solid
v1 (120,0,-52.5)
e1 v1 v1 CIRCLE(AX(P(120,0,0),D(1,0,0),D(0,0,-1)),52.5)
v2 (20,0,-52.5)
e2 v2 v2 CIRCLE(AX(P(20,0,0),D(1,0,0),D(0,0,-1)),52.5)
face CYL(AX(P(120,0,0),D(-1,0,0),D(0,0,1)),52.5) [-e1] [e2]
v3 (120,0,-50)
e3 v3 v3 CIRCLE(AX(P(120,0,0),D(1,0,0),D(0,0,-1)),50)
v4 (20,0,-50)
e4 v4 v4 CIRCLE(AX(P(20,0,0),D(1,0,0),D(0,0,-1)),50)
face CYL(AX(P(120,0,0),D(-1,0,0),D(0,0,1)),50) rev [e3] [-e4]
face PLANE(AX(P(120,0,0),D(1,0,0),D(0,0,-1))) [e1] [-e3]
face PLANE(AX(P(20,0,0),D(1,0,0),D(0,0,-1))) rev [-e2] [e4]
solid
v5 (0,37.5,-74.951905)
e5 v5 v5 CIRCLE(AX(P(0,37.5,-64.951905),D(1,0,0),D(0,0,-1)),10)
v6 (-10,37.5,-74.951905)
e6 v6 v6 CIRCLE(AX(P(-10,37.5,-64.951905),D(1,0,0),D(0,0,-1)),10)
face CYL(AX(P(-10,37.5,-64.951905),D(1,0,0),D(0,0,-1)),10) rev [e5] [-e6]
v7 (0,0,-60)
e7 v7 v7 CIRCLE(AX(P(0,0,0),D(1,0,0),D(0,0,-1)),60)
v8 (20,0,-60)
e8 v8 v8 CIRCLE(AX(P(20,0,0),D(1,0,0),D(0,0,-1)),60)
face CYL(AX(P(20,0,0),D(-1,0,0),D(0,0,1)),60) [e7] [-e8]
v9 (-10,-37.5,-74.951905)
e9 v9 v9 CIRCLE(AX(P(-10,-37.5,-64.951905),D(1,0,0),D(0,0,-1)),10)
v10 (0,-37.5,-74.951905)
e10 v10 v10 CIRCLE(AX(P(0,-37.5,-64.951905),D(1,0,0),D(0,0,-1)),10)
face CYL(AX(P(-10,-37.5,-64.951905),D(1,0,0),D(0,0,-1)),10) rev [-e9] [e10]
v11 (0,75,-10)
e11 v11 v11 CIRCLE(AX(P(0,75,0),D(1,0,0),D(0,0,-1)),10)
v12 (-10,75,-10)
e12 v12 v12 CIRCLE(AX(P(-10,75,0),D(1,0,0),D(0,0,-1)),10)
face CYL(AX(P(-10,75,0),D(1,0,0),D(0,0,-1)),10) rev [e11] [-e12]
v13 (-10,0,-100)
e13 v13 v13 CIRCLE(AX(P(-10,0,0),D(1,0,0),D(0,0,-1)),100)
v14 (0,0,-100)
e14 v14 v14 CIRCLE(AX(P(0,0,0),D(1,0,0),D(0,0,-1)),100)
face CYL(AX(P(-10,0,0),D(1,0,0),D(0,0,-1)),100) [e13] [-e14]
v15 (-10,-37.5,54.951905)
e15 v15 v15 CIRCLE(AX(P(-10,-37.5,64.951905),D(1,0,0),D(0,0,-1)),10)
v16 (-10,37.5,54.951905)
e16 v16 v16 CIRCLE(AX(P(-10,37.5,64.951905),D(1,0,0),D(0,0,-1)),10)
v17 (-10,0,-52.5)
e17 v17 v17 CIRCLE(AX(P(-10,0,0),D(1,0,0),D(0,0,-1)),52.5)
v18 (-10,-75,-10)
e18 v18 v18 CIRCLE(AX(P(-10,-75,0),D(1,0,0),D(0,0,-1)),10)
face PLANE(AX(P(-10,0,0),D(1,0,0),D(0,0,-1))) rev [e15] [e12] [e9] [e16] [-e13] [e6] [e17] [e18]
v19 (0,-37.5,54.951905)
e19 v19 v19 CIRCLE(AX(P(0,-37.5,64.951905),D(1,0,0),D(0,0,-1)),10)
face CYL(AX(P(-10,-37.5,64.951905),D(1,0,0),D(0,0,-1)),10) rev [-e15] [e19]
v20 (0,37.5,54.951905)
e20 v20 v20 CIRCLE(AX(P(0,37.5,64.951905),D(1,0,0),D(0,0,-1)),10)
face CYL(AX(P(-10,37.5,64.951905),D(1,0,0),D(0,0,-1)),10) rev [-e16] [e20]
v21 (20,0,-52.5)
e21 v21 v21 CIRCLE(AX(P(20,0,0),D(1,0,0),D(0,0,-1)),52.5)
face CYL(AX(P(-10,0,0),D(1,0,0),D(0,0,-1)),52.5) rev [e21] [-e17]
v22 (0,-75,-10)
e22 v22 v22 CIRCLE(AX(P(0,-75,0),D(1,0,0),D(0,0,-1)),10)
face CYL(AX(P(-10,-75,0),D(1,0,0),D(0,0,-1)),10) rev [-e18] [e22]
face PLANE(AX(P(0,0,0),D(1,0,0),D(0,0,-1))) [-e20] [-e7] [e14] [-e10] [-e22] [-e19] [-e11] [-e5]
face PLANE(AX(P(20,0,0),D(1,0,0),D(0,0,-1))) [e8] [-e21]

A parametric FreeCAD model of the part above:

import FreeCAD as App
import Part
import Sketcher

V = App.Vector

doc = App.newDocument("Part")
body = doc.addObject("PartDesign::Body", "Body")

# Sketch on YZ plane
sketch1 = body.newObject("Sketcher::SketchObject", "Sketch")
sketch1.AttachmentSupport = (doc.getObject("YZ_Plane"), [""])
sketch1.MapMode = "FlatFace"
sketch1.addGeometry(Part.Circle(V(0, 0, 0), V(0, 0, 1), 100), False)
sketch1.addGeometry(Part.Circle(V(-38, 65, 0), V(0, 0, 1), 10), False)
sketch1.addGeometry(Part.Circle(V(-75, 0, 0), V(0, 0, 1), 10), False)
sketch1.addGeometry(Part.Circle(V(-38, -65, 0), V(0, 0, 1), 10), False)
sketch1.addGeometry(Part.Circle(V(38, 65, 0), V(0, 0, 1), 10), False)
sketch1.addGeometry(Part.Circle(V(0, 0, 0), V(0, 0, 1), 52), False)
sketch1.addGeometry(Part.Circle(V(38, -65, 0), V(0, 0, 1), 10), False)
sketch1.addGeometry(Part.Circle(V(75, 0, 0), V(0, 0, 1), 10), False)
sketch1.addConstraint(Sketcher.Constraint("Coincident", 0, 3, -1, 1))
sketch1.addConstraint(Sketcher.Constraint("Coincident", 5, 3, -1, 1))
sketch1.addConstraint(Sketcher.Constraint("Equal", 1, 2))
sketch1.addConstraint(Sketcher.Constraint("Equal", 2, 3))
sketch1.addConstraint(Sketcher.Constraint("Equal", 3, 4))
sketch1.addConstraint(Sketcher.Constraint("Equal", 4, 6))
sketch1.addConstraint(Sketcher.Constraint("Equal", 6, 7))
sketch1.addConstraint(Sketcher.Constraint("Symmetric", 3, 3, 4, 3, -1, 1))
sketch1.addConstraint(Sketcher.Constraint("Symmetric", 1, 3, 6, 3, -1, 1))
sketch1.addConstraint(Sketcher.Constraint("Symmetric", 2, 3, 7, 3, -1, 1))
sketch1.addConstraint(Sketcher.Constraint("Symmetric", 1, 3, 4, 3, -2))
sketch1.addConstraint(Sketcher.Constraint("PointOnObject", 2, 3, -1))
sketch1.addConstraint(Sketcher.Constraint("Diameter", 0, 200.0))
sketch1.addConstraint(Sketcher.Constraint("Diameter", 1, 20.0))
sketch1.addConstraint(Sketcher.Constraint("Diameter", 5, 105.0))
sketch1.addConstraint(Sketcher.Constraint("DistanceX", 2, 3, -1, 1, 75.0))
sketch1.addConstraint(Sketcher.Constraint("DistanceX", 1, 3, 4, 3, 75.0))
sketch1.addConstraint(Sketcher.Constraint("DistanceY", 3, 3, 1, 3, 129.903811))
pad1 = body.newObject("PartDesign::Pad", "Pad")
pad1.Profile = sketch1
pad1.Length = 10
pad1.Reversed = True

# Sketch on YZ plane
sketch2 = body.newObject("Sketcher::SketchObject", "Sketch001")
sketch2.AttachmentSupport = (doc.getObject("YZ_Plane"), [""])
sketch2.MapMode = "FlatFace"
sketch2.AttachmentOffset = App.Placement(V(0, 0, 20), App.Rotation())
sketch2.addGeometry(Part.Circle(V(0, 0, 0), V(0, 0, 1), 60), False)
sketch2.addGeometry(Part.Circle(V(0, 0, 0), V(0, 0, 1), 52), False)
sketch2.addConstraint(Sketcher.Constraint("Coincident", 0, 3, -1, 1))
sketch2.addConstraint(Sketcher.Constraint("Coincident", 1, 3, -1, 1))
sketch2.addConstraint(Sketcher.Constraint("Diameter", 0, 120.0))
sketch2.addConstraint(Sketcher.Constraint("Diameter", 1, 105.0))
pad2 = body.newObject("PartDesign::Pad", "Pad001")
pad2.Profile = sketch2
pad2.Length = 20
pad2.Reversed = True
body2 = doc.addObject("PartDesign::Body", "Body001")

# Sketch on YZ plane
sketch3 = body2.newObject("Sketcher::SketchObject", "Sketch002")
sketch3.AttachmentSupport = (doc.getObject("YZ_Plane001"), [""])
sketch3.MapMode = "FlatFace"
sketch3.AttachmentOffset = App.Placement(V(0, 0, 20), App.Rotation())
sketch3.addGeometry(Part.Circle(V(0, 0, 0), V(0, 0, 1), 52), False)
sketch3.addGeometry(Part.Circle(V(0, 0, 0), V(0, 0, 1), 50), False)
sketch3.addConstraint(Sketcher.Constraint("Coincident", 0, 3, -1, 1))
sketch3.addConstraint(Sketcher.Constraint("Coincident", 1, 3, -1, 1))
sketch3.addConstraint(Sketcher.Constraint("Diameter", 0, 105.0))
sketch3.addConstraint(Sketcher.Constraint("Diameter", 1, 100.0))
pad3 = body2.newObject("PartDesign::Pad", "Pad002")
pad3.Profile = sketch3
pad3.Length = 100

doc.recompute()
